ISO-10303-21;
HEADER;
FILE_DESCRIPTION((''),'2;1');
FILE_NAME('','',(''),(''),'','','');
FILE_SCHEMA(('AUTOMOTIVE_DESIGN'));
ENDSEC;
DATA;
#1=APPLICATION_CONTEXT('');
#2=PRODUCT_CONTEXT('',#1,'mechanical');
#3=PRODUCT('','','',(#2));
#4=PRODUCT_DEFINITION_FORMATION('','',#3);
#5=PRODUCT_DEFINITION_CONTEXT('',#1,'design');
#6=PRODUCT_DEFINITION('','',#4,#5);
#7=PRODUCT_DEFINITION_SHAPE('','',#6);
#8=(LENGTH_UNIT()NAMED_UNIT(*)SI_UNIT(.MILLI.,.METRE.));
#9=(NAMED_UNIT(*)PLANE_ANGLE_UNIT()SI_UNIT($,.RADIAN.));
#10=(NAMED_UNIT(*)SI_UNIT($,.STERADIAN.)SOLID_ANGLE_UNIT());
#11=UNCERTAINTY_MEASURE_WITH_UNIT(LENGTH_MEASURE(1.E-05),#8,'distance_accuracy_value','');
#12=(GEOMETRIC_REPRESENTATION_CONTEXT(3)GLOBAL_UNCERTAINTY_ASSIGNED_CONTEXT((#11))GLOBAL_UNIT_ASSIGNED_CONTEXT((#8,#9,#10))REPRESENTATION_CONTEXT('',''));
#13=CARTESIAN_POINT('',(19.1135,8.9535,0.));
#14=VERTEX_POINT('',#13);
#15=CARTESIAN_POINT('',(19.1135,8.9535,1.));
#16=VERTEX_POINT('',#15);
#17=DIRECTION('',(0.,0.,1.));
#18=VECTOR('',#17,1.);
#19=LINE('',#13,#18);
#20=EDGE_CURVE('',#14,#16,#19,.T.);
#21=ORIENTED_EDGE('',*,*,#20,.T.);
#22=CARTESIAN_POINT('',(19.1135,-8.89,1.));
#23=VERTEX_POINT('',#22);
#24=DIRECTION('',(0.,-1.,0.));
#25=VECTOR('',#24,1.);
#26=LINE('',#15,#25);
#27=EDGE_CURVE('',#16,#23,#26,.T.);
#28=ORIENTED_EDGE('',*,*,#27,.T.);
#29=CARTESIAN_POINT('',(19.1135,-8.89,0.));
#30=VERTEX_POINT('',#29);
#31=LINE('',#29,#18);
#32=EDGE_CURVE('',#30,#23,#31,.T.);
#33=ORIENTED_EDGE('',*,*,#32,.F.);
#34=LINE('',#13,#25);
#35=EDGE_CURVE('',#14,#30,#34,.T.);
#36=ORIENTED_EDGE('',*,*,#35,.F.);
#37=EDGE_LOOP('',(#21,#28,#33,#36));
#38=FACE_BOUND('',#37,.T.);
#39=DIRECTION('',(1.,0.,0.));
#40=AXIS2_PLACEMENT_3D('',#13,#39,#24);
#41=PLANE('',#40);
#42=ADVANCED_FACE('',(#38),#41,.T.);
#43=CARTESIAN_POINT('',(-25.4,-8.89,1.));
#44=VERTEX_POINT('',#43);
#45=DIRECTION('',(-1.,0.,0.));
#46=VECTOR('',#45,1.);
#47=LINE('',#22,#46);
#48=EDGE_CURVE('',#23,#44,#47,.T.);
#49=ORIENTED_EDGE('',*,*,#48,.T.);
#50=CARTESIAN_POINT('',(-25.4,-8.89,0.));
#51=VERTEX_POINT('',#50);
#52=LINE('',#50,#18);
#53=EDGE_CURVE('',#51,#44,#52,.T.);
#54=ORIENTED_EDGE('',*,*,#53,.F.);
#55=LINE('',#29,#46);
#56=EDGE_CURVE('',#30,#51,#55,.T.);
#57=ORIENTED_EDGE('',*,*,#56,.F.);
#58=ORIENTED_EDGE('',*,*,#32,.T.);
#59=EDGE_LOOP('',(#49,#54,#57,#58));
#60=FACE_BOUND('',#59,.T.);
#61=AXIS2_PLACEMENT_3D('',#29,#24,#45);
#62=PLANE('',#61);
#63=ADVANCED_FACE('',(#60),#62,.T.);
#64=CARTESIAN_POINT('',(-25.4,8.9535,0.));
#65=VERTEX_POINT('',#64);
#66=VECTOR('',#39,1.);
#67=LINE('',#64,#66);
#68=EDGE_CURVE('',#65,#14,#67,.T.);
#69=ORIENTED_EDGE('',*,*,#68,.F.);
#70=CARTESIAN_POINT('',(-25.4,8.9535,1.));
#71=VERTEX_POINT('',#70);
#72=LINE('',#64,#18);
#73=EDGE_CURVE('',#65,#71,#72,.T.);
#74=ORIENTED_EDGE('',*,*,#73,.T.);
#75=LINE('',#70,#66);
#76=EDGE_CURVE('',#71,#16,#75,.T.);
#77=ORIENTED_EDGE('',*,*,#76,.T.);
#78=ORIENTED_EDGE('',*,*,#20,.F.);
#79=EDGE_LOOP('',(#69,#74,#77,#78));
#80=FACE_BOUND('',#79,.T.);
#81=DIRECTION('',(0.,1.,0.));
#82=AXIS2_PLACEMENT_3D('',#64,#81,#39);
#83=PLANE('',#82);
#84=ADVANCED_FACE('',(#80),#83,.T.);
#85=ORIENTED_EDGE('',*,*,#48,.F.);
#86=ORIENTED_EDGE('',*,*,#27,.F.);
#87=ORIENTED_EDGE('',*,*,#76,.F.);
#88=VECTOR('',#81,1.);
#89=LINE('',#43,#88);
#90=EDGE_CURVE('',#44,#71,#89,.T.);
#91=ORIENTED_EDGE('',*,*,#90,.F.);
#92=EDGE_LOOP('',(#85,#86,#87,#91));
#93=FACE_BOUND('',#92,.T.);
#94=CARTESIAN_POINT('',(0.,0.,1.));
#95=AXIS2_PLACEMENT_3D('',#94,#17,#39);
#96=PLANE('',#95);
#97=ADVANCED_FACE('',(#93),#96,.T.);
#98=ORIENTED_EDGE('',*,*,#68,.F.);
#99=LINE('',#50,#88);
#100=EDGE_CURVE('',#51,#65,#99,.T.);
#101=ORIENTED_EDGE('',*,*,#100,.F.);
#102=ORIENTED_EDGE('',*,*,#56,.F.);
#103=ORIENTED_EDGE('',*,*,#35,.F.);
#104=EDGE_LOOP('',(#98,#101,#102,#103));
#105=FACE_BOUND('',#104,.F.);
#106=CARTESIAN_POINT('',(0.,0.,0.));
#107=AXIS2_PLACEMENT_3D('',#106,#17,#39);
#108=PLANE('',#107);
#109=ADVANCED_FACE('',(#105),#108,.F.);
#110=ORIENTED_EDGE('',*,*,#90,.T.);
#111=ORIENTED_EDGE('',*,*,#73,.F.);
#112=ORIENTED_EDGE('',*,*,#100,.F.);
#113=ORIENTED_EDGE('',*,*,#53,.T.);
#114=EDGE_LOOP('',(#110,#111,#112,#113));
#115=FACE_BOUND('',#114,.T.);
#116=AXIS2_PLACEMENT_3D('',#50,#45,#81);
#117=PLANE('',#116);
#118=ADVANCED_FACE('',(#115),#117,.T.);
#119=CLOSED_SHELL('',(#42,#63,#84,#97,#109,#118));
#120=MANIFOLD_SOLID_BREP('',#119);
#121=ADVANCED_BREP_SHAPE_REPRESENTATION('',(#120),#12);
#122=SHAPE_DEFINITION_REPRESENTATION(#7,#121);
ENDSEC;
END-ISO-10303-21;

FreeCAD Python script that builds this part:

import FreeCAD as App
import Part
import Sketcher

doc = App.newDocument("Part")
body = doc.addObject("PartDesign::Body", "Body")

# Sketch on XY plane
sketch1 = body.newObject("Sketcher::SketchObject", "Sketch")
sketch1.AttachmentSupport = (doc.getObject("XY_Plane"), [""])
sketch1.MapMode = "FlatFace"
sketch1.addGeometry([
    Part.LineSegment(App.Vector(19.1135, 8.9535, 0), App.Vector(-25.4, 8.9535, 0)),
    Part.LineSegment(App.Vector(-25.4, 8.9535, 0), App.Vector(-25.4, -8.89, 0)),
    Part.LineSegment(App.Vector(-25.4, -8.89, 0), App.Vector(19.1135, -8.89, 0)),
    Part.LineSegment(App.Vector(19.1135, -8.89, 0), App.Vector(19.1135, 8.9535, 0)),
], False)
sketch1.addConstraint([
    Sketcher.Constraint("Coincident", 0, 2, 1, 1),
    Sketcher.Constraint("Coincident", 1, 2, 2, 1),
    Sketcher.Constraint("Coincident", 2, 2, 3, 1),
    Sketcher.Constraint("Coincident", 3, 2, 0, 1),
    Sketcher.Constraint("Horizontal", 0),
    Sketcher.Constraint("Vertical", 1),
    Sketcher.Constraint("Horizontal", 2),
    Sketcher.Constraint("Vertical", 3),
    Sketcher.Constraint("DistanceX", 0, 2, -1, 1, 25.4),
    Sketcher.Constraint("DistanceY", 1, 2, -1, 1, 8.89),
    Sketcher.Constraint("DistanceX", 0, 2, 0, 1, 44.5135),
    Sketcher.Constraint("DistanceY", 1, 2, 1, 1, 17.8435),
])
pad1 = body.newObject("PartDesign::Pad", "Pad")
pad1.Profile = sketch1
pad1.Length = 1

doc.recompute()
